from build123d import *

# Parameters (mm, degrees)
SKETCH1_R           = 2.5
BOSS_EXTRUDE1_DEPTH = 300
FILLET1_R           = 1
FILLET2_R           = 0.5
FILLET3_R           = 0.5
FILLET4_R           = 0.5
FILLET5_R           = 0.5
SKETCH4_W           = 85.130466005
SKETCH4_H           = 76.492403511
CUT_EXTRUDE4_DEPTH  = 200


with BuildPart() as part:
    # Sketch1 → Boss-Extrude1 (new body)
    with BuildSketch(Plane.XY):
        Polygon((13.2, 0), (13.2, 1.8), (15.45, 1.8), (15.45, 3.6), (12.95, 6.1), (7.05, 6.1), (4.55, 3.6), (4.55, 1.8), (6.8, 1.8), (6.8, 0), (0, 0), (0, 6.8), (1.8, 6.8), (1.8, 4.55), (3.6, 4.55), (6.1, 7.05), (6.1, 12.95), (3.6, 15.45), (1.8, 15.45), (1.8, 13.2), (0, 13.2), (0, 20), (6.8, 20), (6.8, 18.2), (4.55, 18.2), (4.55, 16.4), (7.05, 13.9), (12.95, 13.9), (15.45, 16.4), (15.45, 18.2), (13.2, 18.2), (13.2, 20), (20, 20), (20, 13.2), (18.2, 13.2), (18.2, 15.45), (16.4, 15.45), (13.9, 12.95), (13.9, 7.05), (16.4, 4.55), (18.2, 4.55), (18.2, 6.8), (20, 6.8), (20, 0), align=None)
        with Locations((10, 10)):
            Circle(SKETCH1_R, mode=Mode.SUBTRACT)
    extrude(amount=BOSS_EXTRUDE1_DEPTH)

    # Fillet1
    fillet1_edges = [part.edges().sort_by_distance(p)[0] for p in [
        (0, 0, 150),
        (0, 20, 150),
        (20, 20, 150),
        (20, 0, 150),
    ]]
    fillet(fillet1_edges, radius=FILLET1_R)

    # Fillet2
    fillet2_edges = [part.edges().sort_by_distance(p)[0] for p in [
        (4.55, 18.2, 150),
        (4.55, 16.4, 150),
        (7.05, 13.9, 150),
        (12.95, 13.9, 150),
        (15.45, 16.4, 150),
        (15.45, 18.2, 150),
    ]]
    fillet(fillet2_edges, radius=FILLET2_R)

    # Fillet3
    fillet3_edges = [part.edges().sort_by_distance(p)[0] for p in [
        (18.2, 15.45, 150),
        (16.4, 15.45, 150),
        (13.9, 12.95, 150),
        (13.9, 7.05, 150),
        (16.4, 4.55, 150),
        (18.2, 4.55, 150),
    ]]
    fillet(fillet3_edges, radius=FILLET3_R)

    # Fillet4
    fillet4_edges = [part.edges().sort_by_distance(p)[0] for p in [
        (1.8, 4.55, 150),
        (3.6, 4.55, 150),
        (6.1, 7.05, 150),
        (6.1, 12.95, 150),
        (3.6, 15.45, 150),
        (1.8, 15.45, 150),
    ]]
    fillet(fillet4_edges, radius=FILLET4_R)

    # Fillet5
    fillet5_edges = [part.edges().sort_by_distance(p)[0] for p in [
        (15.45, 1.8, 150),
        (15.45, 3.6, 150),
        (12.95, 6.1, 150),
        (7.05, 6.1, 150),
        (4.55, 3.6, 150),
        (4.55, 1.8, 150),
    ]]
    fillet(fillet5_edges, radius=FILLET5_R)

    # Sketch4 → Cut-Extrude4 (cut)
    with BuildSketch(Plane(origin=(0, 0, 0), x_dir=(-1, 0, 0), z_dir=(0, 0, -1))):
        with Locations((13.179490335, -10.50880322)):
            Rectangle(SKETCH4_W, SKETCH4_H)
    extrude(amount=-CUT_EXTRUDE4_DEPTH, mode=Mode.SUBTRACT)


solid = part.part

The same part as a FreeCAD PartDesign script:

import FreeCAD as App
import Part
import Sketcher
Q = App.Units.Quantity


def edges_at(feature, points):
    """Names of the edges that pass closest to the given points."""
    edges = feature.Shape.Edges
    near = lambda p: min(range(len(edges)), key=lambda i: edges[i].distToShape(Part.Vertex(*p))[0])
    return sorted({f"Edge{near(p) + 1}" for p in points})


def add_polygon(sketch, points):
    """Adds a closed chain of lines whose ends are joined by coincident constraints."""
    first, n = sketch.GeometryCount, len(points)
    for a, b in zip(points, points[1:] + points[:1]):
        sketch.addGeometry(Part.LineSegment(App.Vector(*a, 0), App.Vector(*b, 0)), False)
    for i in range(n):
        sketch.addConstraint(Sketcher.Constraint("Coincident", first + i, 2, first + (i + 1) % n, 1))

doc = App.newDocument("Part")
body = doc.addObject("PartDesign::Body", "Body")

sketch1 = body.newObject("Sketcher::SketchObject", "Sketch")
sketch1.AttachmentSupport = (doc.getObject("XY_Plane"), [""])
sketch1.MapMode = "FlatFace"
add_polygon(sketch1, [(13.2, 1.8), (13.2, 0), (20, 0), (20, 6.8), (18.2, 6.8), (18.2, 4.5), (16.4, 4.5), (13.9, 7), (13.9, 12.9), (16.4, 15.4), (18.2, 15.4), (18.2, 13.2), (20, 13.2), (20, 20), (13.2, 20), (13.2, 18.2), (15.4, 18.2), (15.4, 16.4), (12.9, 13.9), (7, 13.9), (4.5, 16.4), (4.5, 18.2), (6.8, 18.2), (6.8, 20), (0, 20), (0, 13.2), (1.8, 13.2), (1.8, 15.4), (3.6, 15.4), (6.1, 12.9), (6.1, 7), (3.6, 4.5), (1.8, 4.5), (1.8, 6.8), (0, 6.8), (0, 0), (6.8, 0), (6.8, 1.8), (4.5, 1.8), (4.5, 3.6), (7, 6.1), (12.9, 6.1), (15.4, 3.6), (15.4, 1.8)])
sketch1.addGeometry(Part.Circle(App.Vector(10, 10, 0), App.Vector(0, 0, 1), 2.5), False)
sketch1.addConstraint([
    Sketcher.Constraint("Vertical", 0),
    Sketcher.Constraint("Horizontal", 1),
    Sketcher.Constraint("Vertical", 2),
    Sketcher.Constraint("Horizontal", 3),
    Sketcher.Constraint("Vertical", 4),
    Sketcher.Constraint("Horizontal", 5),
    Sketcher.Constraint("Vertical", 7),
    Sketcher.Constraint("Horizontal", 9),
    Sketcher.Constraint("Vertical", 10),
    Sketcher.Constraint("Horizontal", 11),
    Sketcher.Constraint("Vertical", 12),
    Sketcher.Constraint("Horizontal", 13),
    Sketcher.Constraint("Vertical", 14),
    Sketcher.Constraint("Horizontal", 15),
    Sketcher.Constraint("Vertical", 16),
    Sketcher.Constraint("Horizontal", 18),
    Sketcher.Constraint("Vertical", 20),
    Sketcher.Constraint("Horizontal", 21),
    Sketcher.Constraint("Vertical", 22),
    Sketcher.Constraint("Horizontal", 23),
    Sketcher.Constraint("Vertical", 24),
    Sketcher.Constraint("Horizontal", 25),
    Sketcher.Constraint("Vertical", 26),
    Sketcher.Constraint("Horizontal", 27),
    Sketcher.Constraint("Vertical", 29),
    Sketcher.Constraint("Horizontal", 31),
    Sketcher.Constraint("Vertical", 32),
    Sketcher.Constraint("Horizontal", 33),
    Sketcher.Constraint("Vertical", 34),
    Sketcher.Constraint("Horizontal", 35),
    Sketcher.Constraint("Vertical", 36),
    Sketcher.Constraint("Horizontal", 37),
    Sketcher.Constraint("Vertical", 38),
    Sketcher.Constraint("Horizontal", 40),
    Sketcher.Constraint("Vertical", 42),
    Sketcher.Constraint("Horizontal", 43),
    Sketcher.Constraint("Coincident", 34, 2, -1, 1),
    Sketcher.Constraint("PointOnObject", 0, 2, -1),
    Sketcher.Constraint("PointOnObject", 23, 2, -2),
    Sketcher.Constraint("Perpendicular", 6, 8),
    Sketcher.Constraint("Parallel", 8, 17),
    Sketcher.Constraint("Perpendicular", 17, 19),
    Sketcher.Constraint("Parallel", 19, 28),
    Sketcher.Constraint("Perpendicular", 28, 30),
    Sketcher.Constraint("Parallel", 30, 39),
    Sketcher.Constraint("Perpendicular", 39, 41),
    Sketcher.Constraint("Horizontal", 16, 2, 19, 2),
    Sketcher.Constraint("Horizontal", 15, 2, 20, 2),
    Sketcher.Constraint("Horizontal", 13, 2, 22, 2),
    Sketcher.Constraint("Horizontal", 11, 2, 24, 2),
    Sketcher.Constraint("Horizontal", 9, 2, 26, 2),
    Sketcher.Constraint("Horizontal", 7, 2, 28, 2),
    Sketcher.Constraint("Horizontal", 6, 2, 29, 2),
    Sketcher.Constraint("Horizontal", 5, 2, 30, 2),
    Sketcher.Constraint("Horizontal", 3, 2, 32, 2),
    Sketcher.Constraint("Horizontal", 38, 2, 41, 2),
    Sketcher.Constraint("Horizontal", 37, 2, 42, 2),
    Sketcher.Constraint("Vertical", 5, 2, 8, 2),
    Sketcher.Constraint("Vertical", 4, 2, 9, 2),
    Sketcher.Constraint("Vertical", 2, 2, 11, 2),
    Sketcher.Constraint("Vertical", 0, 2, 13, 2),
    Sketcher.Constraint("Vertical", 27, 2, 30, 2),
    Sketcher.Constraint("Vertical", 26, 2, 31, 2),
    Sketcher.Constraint("Vertical", 22, 2, 35, 2),
    Sketcher.Constraint("Vertical", 20, 2, 37, 2),
    Sketcher.Constraint("Vertical", 18, 2, 39, 2),
    Sketcher.Constraint("Vertical", 17, 2, 40, 2),
    Sketcher.Constraint("Equal", 3, 5),
    Sketcher.Constraint("Equal", 15, 21),
    Sketcher.Constraint("Equal", 13, 23),
    Sketcher.Constraint("Equal", 11, 25),
    Sketcher.Constraint("Equal", 25, 27),
    Sketcher.Constraint("Equal", 33, 0),
    Sketcher.Constraint("Equal", 35, 2),
    Sketcher.Constraint("Equal", 43, 4),
    Sketcher.Constraint("Equal", 40, 7),
    Sketcher.Constraint("Equal", 4, 10),
    Sketcher.Constraint("Equal", 2, 12),
    Sketcher.Constraint("Equal", 0, 14),
    Sketcher.Constraint("Equal", 14, 16),
    Sketcher.Constraint("Equal", 36, 38),
    Sketcher.Constraint("Equal", 8, 17),
    Sketcher.Constraint("Diameter", 44, Q("5 mm")),
    Sketcher.Constraint("DistanceX", 1, 1, 1, 2, Q("6.8 mm")),
    Sketcher.Constraint("DistanceX", 3, 2, 3, 1, Q("1.8 mm")),
    Sketcher.Constraint("DistanceX", 18, 2, 18, 1, Q("5.9 mm")),
    Sketcher.Constraint("DistanceX", -1, 1, 44, 3, Q("10 mm")),
    Sketcher.Constraint("DistanceY", -1, 1, 44, 3, Q("10 mm")),
    Sketcher.Constraint("DistanceX", -1, 1, 1, 2, Q("20 mm")),
    Sketcher.Constraint("DistanceX", 15, 1, 15, 2, Q("2.25 mm")),
])
pad1 = body.newObject("PartDesign::Pad", "Pad")
pad1.Profile = sketch1
pad1.Length = 300
doc.recompute()

fillet = body.newObject("PartDesign::Fillet", "Fillet")
fillet.Base = (pad1, edges_at(pad1, [
    (0, 0, 150),
    (0, 20, 150),
    (20, 20, 150),
    (20, 0, 150),
]))
fillet.Radius = 1
doc.recompute()

fillet2 = body.newObject("PartDesign::Fillet", "Fillet001")
fillet2.Base = (fillet, edges_at(fillet, [
    (4.55, 18.2, 150),
    (4.55, 16.4, 150),
    (7.05, 13.9, 150),
    (12.95, 13.9, 150),
    (15.45, 16.4, 150),
    (15.45, 18.2, 150),
]))
fillet2.Radius = 0.5
doc.recompute()

fillet3 = body.newObject("PartDesign::Fillet", "Fillet002")
fillet3.Base = (fillet2, edges_at(fillet2, [
    (18.2, 15.45, 150),
    (16.4, 15.45, 150),
    (13.9, 12.95, 150),
    (13.9, 7.05, 150),
    (16.4, 4.55, 150),
    (18.2, 4.55, 150),
]))
fillet3.Radius = 0.5
doc.recompute()

fillet4 = body.newObject("PartDesign::Fillet", "Fillet003")
fillet4.Base = (fillet3, edges_at(fillet3, [
    (1.8, 4.55, 150),
    (3.6, 4.55, 150),
    (6.1, 7.05, 150),
    (6.1, 12.95, 150),
    (3.6, 15.45, 150),
    (1.8, 15.45, 150),
]))
fillet4.Radius = 0.5
doc.recompute()

fillet5 = body.newObject("PartDesign::Fillet", "Fillet004")
fillet5.Base = (fillet4, edges_at(fillet4, [
    (15.45, 1.8, 150),
    (15.45, 3.6, 150),
    (12.95, 6.1, 150),
    (7.05, 6.1, 150),
    (4.55, 3.6, 150),
    (4.55, 1.8, 150),
]))
fillet5.Radius = 0.5

sketch2 = body.newObject("Sketcher::SketchObject", "Sketch001")
sketch2.AttachmentSupport = (doc.getObject("XY_Plane"), [""])
sketch2.MapMode = "FlatFace"
add_polygon(sketch2, [(29, 28), (29, -49), (-56, -49), (-56, 28)])
sketch2.addConstraint([
    Sketcher.Constraint("Vertical", 0),
    Sketcher.Constraint("Horizontal", 1),
    Sketcher.Constraint("Vertical", 2),
    Sketcher.Constraint("Horizontal", 3),
    Sketcher.Constraint("DistanceY", -1, 1, 2, 2, Q("27.737399 mm")),
    Sketcher.Constraint("DistanceX", 1, 2, 1, 1, Q("85.130466 mm")),
    Sketcher.Constraint("DistanceY", 0, 2, 0, 1, Q("76.492404 mm")),
    Sketcher.Constraint("DistanceX", -1, 1, 0, 2, Q("29.385743 mm")),
])
pocket1 = body.newObject("PartDesign::Pocket", "Pocket")
pocket1.Profile = sketch2
pocket1.Length = 200
pocket1.Reversed = True

doc.recompute()
